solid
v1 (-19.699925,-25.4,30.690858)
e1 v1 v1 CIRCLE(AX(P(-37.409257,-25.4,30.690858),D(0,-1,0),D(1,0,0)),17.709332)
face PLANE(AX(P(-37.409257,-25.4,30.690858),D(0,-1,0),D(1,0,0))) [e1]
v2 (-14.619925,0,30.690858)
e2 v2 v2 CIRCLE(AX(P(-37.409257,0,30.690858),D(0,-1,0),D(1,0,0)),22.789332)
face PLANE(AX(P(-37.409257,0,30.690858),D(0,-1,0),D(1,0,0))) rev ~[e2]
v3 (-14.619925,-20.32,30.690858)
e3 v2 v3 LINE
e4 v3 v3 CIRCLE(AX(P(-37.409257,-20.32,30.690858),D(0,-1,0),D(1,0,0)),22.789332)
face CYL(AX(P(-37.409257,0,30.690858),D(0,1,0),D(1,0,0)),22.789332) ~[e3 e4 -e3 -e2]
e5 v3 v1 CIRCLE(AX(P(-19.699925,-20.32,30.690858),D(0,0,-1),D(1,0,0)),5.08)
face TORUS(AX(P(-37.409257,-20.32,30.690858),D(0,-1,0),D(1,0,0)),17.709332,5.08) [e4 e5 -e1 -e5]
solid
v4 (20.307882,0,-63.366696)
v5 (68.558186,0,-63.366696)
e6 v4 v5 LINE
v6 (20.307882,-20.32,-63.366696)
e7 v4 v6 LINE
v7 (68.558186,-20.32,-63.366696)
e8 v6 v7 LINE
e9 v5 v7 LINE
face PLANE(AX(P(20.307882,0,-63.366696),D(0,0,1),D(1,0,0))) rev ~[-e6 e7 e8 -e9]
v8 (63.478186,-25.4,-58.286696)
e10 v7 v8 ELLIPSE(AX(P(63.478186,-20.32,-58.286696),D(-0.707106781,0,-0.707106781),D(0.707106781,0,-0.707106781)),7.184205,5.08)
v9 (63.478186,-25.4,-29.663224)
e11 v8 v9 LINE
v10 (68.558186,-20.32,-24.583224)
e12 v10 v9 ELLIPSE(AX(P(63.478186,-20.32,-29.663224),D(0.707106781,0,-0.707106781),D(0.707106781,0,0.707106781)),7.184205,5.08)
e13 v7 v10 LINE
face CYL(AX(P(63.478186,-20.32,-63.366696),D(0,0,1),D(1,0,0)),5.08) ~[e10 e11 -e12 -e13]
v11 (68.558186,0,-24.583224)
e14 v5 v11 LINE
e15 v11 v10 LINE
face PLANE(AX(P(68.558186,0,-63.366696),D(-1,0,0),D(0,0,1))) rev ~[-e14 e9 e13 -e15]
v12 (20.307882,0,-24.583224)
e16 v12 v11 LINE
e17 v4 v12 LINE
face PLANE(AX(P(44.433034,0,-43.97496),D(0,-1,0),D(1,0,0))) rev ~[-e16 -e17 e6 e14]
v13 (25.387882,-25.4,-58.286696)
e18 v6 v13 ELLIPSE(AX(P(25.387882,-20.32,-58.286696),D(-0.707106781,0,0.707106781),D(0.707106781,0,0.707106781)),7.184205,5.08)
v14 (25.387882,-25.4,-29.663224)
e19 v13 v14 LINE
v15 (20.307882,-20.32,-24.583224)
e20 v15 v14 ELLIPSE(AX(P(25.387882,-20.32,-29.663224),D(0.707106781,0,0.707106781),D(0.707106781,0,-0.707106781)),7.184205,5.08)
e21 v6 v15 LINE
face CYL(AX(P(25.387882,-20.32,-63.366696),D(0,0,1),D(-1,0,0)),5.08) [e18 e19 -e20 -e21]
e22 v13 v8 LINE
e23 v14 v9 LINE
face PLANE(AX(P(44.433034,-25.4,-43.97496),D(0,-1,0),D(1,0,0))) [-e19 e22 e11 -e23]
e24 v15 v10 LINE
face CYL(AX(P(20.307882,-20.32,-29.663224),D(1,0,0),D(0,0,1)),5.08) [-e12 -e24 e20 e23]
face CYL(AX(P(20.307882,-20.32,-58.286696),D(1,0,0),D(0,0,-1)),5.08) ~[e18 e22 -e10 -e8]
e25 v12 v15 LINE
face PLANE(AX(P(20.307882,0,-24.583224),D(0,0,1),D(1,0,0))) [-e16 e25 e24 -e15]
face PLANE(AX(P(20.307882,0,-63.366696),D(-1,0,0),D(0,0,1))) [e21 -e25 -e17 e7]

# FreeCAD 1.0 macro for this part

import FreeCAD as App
import Part
import Sketcher
from FreeCAD import Vector


def edges_at(feature, points):
    """Names of the edges that pass closest to the given points."""
    edges = feature.Shape.Edges
    near = lambda p: min(range(len(edges)), key=lambda i: edges[i].distToShape(Part.Vertex(*p))[0])
    return sorted({f"Edge{near(p) + 1}" for p in points})

doc = App.newDocument("Part")
params = doc.addObject("Spreadsheet::Sheet", "Params")
for row, (alias, value) in enumerate([
    ("pad1_length", "1 in"),
    ("fillet_radius", "0.2 in"),
], start=1):
    params.set(f"A{row}", alias)
    params.set(f"B{row}", "=" + value)
    params.setAlias(f"B{row}", alias)

body = doc.addObject("PartDesign::Body", "Body")
body.AllowCompound = True

sketch1 = body.newObject("Sketcher::SketchObject", "Sketch")
sketch1.AttachmentSupport = (doc.getObject("XZ_Plane"), [""])
sketch1.MapMode = "FlatFace"
sketch1.addGeometry([
    Part.Circle(Vector(-37.409257, 30.690858, 0), Vector(0, 0, 1), 22.789332),
    Part.LineSegment(Vector(20.307882, -24.583224, 0), Vector(20.307882, -63.366696, 0)),
    Part.LineSegment(Vector(20.307882, -63.366696, 0), Vector(68.558186, -63.366696, 0)),
    Part.LineSegment(Vector(68.558186, -63.366696, 0), Vector(68.558186, -24.583224, 0)),
    Part.LineSegment(Vector(68.558186, -24.583224, 0), Vector(20.307882, -24.583224, 0)),
], False)
sketch1.addConstraint([
    Sketcher.Constraint("Coincident", 1, 2, 2, 1),
    Sketcher.Constraint("Coincident", 2, 2, 3, 1),
    Sketcher.Constraint("Coincident", 3, 2, 4, 1),
    Sketcher.Constraint("Coincident", 4, 2, 1, 1),
    Sketcher.Constraint("Vertical", 1),
    Sketcher.Constraint("Horizontal", 2),
    Sketcher.Constraint("Vertical", 3),
    Sketcher.Constraint("Horizontal", 4),
    Sketcher.Constraint("Diameter", 0, 45.578664),
    Sketcher.Constraint("DistanceY", 1, 2, 1, 1, 38.783472),
    Sketcher.Constraint("DistanceX", 2, 1, 2, 2, 48.250304),
    Sketcher.Constraint("DistanceX", -1, 1, 1, 2, 20.307882),
    Sketcher.Constraint("DistanceX", 0, 3, 1, 2, 57.717139),
    Sketcher.Constraint("DistanceY", -1, 1, 0, 3, 30.690858),
    Sketcher.Constraint("DistanceY", 1, 2, -1, 1, 63.366696),
])
pad1 = body.newObject("PartDesign::Pad", "Pad")
pad1.Profile = sketch1
pad1.setExpression("Length", "Params.pad1_length")
doc.recompute()

fillet = body.newObject("PartDesign::Fillet", "Fillet")
fillet.Base = (pad1, edges_at(pad1, [
    (-60.199, -25.4, 30.691),
    (44.433, -25.4, -24.583),
    (20.308, -25.4, -43.975),
    (44.433, -25.4, -63.367),
    (68.558, -25.4, -43.975),
]))
fillet.setExpression("Radius", "Params.fillet_radius")

doc.recompute()
